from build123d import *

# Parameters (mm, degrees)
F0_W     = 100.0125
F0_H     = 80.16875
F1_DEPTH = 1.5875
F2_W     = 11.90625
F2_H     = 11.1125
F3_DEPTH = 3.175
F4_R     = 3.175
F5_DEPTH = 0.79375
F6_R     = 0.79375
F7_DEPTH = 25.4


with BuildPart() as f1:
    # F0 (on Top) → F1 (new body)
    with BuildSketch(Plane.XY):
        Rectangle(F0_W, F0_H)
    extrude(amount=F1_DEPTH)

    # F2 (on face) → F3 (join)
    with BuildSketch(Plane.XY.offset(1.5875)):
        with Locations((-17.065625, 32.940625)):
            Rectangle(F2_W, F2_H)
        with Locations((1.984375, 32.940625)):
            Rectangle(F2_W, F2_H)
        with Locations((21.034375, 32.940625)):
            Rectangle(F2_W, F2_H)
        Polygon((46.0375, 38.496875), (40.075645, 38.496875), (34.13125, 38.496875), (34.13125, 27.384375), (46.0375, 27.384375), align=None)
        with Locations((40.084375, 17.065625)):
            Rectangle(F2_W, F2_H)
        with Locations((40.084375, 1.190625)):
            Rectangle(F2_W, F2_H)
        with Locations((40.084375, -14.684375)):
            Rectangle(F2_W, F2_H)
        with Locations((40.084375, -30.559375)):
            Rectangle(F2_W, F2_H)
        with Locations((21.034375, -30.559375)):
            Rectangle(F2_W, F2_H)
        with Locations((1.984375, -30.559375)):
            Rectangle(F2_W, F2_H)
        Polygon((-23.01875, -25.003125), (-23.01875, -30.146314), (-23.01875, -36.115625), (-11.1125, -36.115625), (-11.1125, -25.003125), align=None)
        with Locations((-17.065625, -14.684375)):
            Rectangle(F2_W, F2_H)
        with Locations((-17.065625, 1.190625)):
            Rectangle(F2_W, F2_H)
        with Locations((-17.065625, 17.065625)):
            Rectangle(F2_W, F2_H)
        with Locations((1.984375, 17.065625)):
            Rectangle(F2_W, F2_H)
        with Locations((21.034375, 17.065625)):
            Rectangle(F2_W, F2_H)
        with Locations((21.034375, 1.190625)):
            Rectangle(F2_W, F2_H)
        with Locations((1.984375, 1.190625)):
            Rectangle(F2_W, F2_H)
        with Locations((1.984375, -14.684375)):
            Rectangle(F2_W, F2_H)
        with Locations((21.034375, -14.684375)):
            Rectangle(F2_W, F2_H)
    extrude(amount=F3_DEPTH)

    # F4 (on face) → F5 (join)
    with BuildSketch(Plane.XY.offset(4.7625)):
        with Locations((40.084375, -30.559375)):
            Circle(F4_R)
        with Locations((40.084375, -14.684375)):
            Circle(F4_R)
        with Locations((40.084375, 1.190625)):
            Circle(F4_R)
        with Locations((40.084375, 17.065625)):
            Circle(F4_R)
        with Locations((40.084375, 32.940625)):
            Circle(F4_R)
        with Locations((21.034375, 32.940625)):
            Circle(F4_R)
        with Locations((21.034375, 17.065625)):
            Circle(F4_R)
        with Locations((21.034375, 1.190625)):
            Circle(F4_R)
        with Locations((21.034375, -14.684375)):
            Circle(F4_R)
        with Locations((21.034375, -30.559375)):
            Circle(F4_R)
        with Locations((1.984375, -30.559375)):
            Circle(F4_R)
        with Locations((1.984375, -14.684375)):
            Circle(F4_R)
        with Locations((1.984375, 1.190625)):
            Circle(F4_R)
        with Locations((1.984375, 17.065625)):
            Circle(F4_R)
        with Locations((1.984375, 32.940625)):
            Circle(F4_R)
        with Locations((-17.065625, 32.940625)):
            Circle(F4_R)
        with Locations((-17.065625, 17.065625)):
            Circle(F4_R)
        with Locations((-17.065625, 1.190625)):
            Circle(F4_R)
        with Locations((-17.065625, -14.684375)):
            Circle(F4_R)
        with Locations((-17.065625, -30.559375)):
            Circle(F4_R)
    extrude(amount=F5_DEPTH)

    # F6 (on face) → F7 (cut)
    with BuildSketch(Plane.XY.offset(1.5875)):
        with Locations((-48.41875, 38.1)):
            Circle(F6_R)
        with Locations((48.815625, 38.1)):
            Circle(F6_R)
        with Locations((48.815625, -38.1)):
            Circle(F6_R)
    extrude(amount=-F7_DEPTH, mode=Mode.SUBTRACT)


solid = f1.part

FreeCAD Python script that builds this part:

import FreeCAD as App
import Part
import Sketcher
from FreeCAD import Vector
Q = App.Units.Quantity


def add_polygon(sketch, points):
    """Adds a closed chain of lines whose ends are joined by coincident constraints."""
    first, n = sketch.GeometryCount, len(points)
    for a, b in zip(points, points[1:] + points[:1]):
        sketch.addGeometry(Part.LineSegment(App.Vector(*a, 0), App.Vector(*b, 0)), False)
    for i in range(n):
        sketch.addConstraint(Sketcher.Constraint("Coincident", first + i, 2, first + (i + 1) % n, 1))

doc = App.newDocument("Part")
params = doc.addObject("Spreadsheet::Sheet", "Params")
for row, (alias, value) in enumerate([
    ("sketch1_width", "3.9375 in"),
    ("sketch1_height", "3.15625 in"),
    ("pad1_length", "0.0625 in"),
    ("sketch2_width", "0.46875 in"),
    ("sketch2_height", "0.4375 in"),
    ("pad2_length", "0.125 in"),
    ("sketch3_diameter", "0.25 in"),
    ("pad3_length", "0.03125 in"),
    ("sketch4_diameter", "0.0625 in"),
    ("pocket1_length", "1 in"),
], start=1):
    params.set(f"A{row}", alias)
    params.set(f"B{row}", "=" + value)
    params.setAlias(f"B{row}", alias)

body = doc.addObject("PartDesign::Body", "Body")

# Sketch on XY plane
sketch1 = body.newObject("Sketcher::SketchObject", "Sketch")
sketch1.AttachmentSupport = (doc.getObject("XY_Plane"), [""])
sketch1.MapMode = "FlatFace"
add_polygon(sketch1, [(-50.00625, 40.084375), (-50.00625, -40.084375), (50.00625, -40.084375), (50.00625, 40.084375)])  # lines 0-3
sketch1.addConstraint([
    Sketcher.Constraint("Vertical", 0),
    Sketcher.Constraint("Horizontal", 1),
    Sketcher.Constraint("Vertical", 2),
    Sketcher.Constraint("Horizontal", 3),
    Sketcher.Constraint("Symmetric", 0, 2, 2, 2, -1, 1),
    Sketcher.Constraint("DistanceX", 1, 1, 1, 2, Q("3.9375 in")),
    Sketcher.Constraint("DistanceY", 0, 2, 0, 1, Q("3.15625 in")),
])
sketch1.setExpression("Constraints[9]", "Params.sketch1_width")
sketch1.setExpression("Constraints[10]", "Params.sketch1_height")
pad1 = body.newObject("PartDesign::Pad", "Pad")
pad1.Profile = sketch1
pad1.setExpression("Length", "Params.pad1_length")

# Sketch on XY plane
sketch2 = body.newObject("Sketcher::SketchObject", "Sketch001")
sketch2.AttachmentSupport = (doc.getObject("XY_Plane"), [""])
sketch2.MapMode = "FlatFace"
sketch2.AttachmentOffset = App.Placement(Vector(0, 0, 0.0625 * 25.4), App.Rotation())
add_polygon(sketch2, [(-23.01875, 38.496875), (-23.01875, 27.384375), (-11.1125, 27.384375), (-11.1125, 38.496875)])  # lines 0-3
add_polygon(sketch2, [(-3.96875, 38.496875), (-3.96875, 27.384375), (7.9375, 27.384375), (7.9375, 38.496875)])  # lines 4-7
add_polygon(sketch2, [(15.08125, 38.496875), (15.08125, 27.384375), (26.9875, 27.384375), (26.9875, 38.496875)])  # lines 8-11
add_polygon(sketch2, [(46.0375, 38.496875), (34.13125, 38.496875), (34.13125, 27.384375), (46.0375, 27.384375)])  # lines 12-15
add_polygon(sketch2, [(34.13125, 22.621875), (34.13125, 11.509375), (46.0375, 11.509375), (46.0375, 22.621875)])  # lines 16-19
add_polygon(sketch2, [(34.13125, 6.746875), (34.13125, -4.365625), (46.0375, -4.365625), (46.0375, 6.746875)])  # lines 20-23
add_polygon(sketch2, [(34.13125, -9.128125), (34.13125, -20.240625), (46.0375, -20.240625), (46.0375, -9.128125)])  # lines 24-27
add_polygon(sketch2, [(34.13125, -25.003125), (34.13125, -36.115625), (46.0375, -36.115625), (46.0375, -25.003125)])  # lines 28-31
add_polygon(sketch2, [(15.08125, -25.003125), (15.08125, -36.115625), (26.9875, -36.115625), (26.9875, -25.003125)])  # lines 32-35
add_polygon(sketch2, [(-3.96875, -25.003125), (-3.96875, -36.115625), (7.9375, -36.115625), (7.9375, -25.003125)])  # lines 36-39
add_polygon(sketch2, [(-23.01875, -25.003125), (-23.01875, -36.115625), (-11.1125, -36.115625), (-11.1125, -25.003125)])  # lines 40-43
add_polygon(sketch2, [(-23.01875, -9.128125), (-23.01875, -20.240625), (-11.1125, -20.240625), (-11.1125, -9.128125)])  # lines 44-47
add_polygon(sketch2, [(-23.01875, 6.746875), (-23.01875, -4.365625), (-11.1125, -4.365625), (-11.1125, 6.746875)])  # lines 48-51
add_polygon(sketch2, [(-23.01875, 22.621875), (-23.01875, 11.509375), (-11.1125, 11.509375), (-11.1125, 22.621875)])  # lines 52-55
add_polygon(sketch2, [(-3.96875, 22.621875), (-3.96875, 11.509375), (7.9375, 11.509375), (7.9375, 22.621875)])  # lines 56-59
add_polygon(sketch2, [(15.08125, 22.621875), (15.08125, 11.509375), (26.9875, 11.509375), (26.9875, 22.621875)])  # lines 60-63
add_polygon(sketch2, [(15.08125, 6.746875), (15.08125, -4.365625), (26.9875, -4.365625), (26.9875, 6.746875)])  # lines 64-67
add_polygon(sketch2, [(-3.96875, 6.746875), (-3.96875, -4.365625), (7.9375, -4.365625), (7.9375, 6.746875)])  # lines 68-71
add_polygon(sketch2, [(-3.96875, -9.128125), (-3.96875, -20.240625), (7.9375, -20.240625), (7.9375, -9.128125)])  # lines 72-75
add_polygon(sketch2, [(15.08125, -9.128125), (15.08125, -20.240625), (26.9875, -20.240625), (26.9875, -9.128125)])  # lines 76-79
sketch2.addConstraint([
    Sketcher.Constraint("Vertical", 0),
    Sketcher.Constraint("Horizontal", 1),
    Sketcher.Constraint("Vertical", 2),
    Sketcher.Constraint("Horizontal", 3),
    Sketcher.Constraint("Vertical", 4),
    Sketcher.Constraint("Horizontal", 5),
    Sketcher.Constraint("Vertical", 6),
    Sketcher.Constraint("Horizontal", 7),
    Sketcher.Constraint("Vertical", 8),
    Sketcher.Constraint("Horizontal", 9),
    Sketcher.Constraint("Vertical", 10),
    Sketcher.Constraint("Horizontal", 11),
    Sketcher.Constraint("Horizontal", 12),
    Sketcher.Constraint("Vertical", 13),
    Sketcher.Constraint("Horizontal", 14),
    Sketcher.Constraint("Vertical", 15),
    Sketcher.Constraint("Vertical", 16),
    Sketcher.Constraint("Horizontal", 17),
    Sketcher.Constraint("Vertical", 18),
    Sketcher.Constraint("Horizontal", 19),
    Sketcher.Constraint("Vertical", 20),
    Sketcher.Constraint("Horizontal", 21),
    Sketcher.Constraint("Vertical", 22),
    Sketcher.Constraint("Horizontal", 23),
    Sketcher.Constraint("Vertical", 24),
    Sketcher.Constraint("Horizontal", 25),
    Sketcher.Constraint("Vertical", 26),
    Sketcher.Constraint("Horizontal", 27),
    Sketcher.Constraint("Vertical", 28),
    Sketcher.Constraint("Horizontal", 29),
    Sketcher.Constraint("Vertical", 30),
    Sketcher.Constraint("Horizontal", 31),
    Sketcher.Constraint("Vertical", 32),
    Sketcher.Constraint("Horizontal", 33),
    Sketcher.Constraint("Vertical", 34),
    Sketcher.Constraint("Horizontal", 35),
    Sketcher.Constraint("Vertical", 36),
    Sketcher.Constraint("Horizontal", 37),
    Sketcher.Constraint("Vertical", 38),
    Sketcher.Constraint("Horizontal", 39),
    Sketcher.Constraint("Vertical", 40),
    Sketcher.Constraint("Horizontal", 41),
    Sketcher.Constraint("Vertical", 42),
    Sketcher.Constraint("Horizontal", 43),
    Sketcher.Constraint("Vertical", 44),
    Sketcher.Constraint("Horizontal", 45),
    Sketcher.Constraint("Vertical", 46),
    Sketcher.Constraint("Horizontal", 47),
    Sketcher.Constraint("Vertical", 48),
    Sketcher.Constraint("Horizontal", 49),
    Sketcher.Constraint("Vertical", 50),
    Sketcher.Constraint("Horizontal", 51),
    Sketcher.Constraint("Vertical", 52),
    Sketcher.Constraint("Horizontal", 53),
    Sketcher.Constraint("Vertical", 54),
    Sketcher.Constraint("Horizontal", 55),
    Sketcher.Constraint("Vertical", 56),
    Sketcher.Constraint("Horizontal", 57),
    Sketcher.Constraint("Vertical", 58),
    Sketcher.Constraint("Horizontal", 59),
    Sketcher.Constraint("Vertical", 60),
    Sketcher.Constraint("Horizontal", 61),
    Sketcher.Constraint("Vertical", 62),
    Sketcher.Constraint("Horizontal", 63),
    Sketcher.Constraint("Vertical", 64),
    Sketcher.Constraint("Horizontal", 65),
    Sketcher.Constraint("Vertical", 66),
    Sketcher.Constraint("Horizontal", 67),
    Sketcher.Constraint("Vertical", 68),
    Sketcher.Constraint("Horizontal", 69),
    Sketcher.Constraint("Vertical", 70),
    Sketcher.Constraint("Horizontal", 71),
    Sketcher.Constraint("Vertical", 72),
    Sketcher.Constraint("Horizontal", 73),
    Sketcher.Constraint("Vertical", 74),
    Sketcher.Constraint("Horizontal", 75),
    Sketcher.Constraint("Vertical", 76),
    Sketcher.Constraint("Horizontal", 77),
    Sketcher.Constraint("Vertical", 78),
    Sketcher.Constraint("Horizontal", 79),
    Sketcher.Constraint("Horizontal", 1, 2, 4, 2),
    Sketcher.Constraint("Horizontal", 3, 2, 6, 2),
    Sketcher.Constraint("Horizontal", 5, 2, 8, 2),
    Sketcher.Constraint("Horizontal", 7, 2, 10, 2),
    Sketcher.Constraint("Horizontal", 11, 2, 12, 2),
    Sketcher.Constraint("Horizontal", 9, 2, 13, 2),
    Sketcher.Constraint("Horizontal", 29, 2, 32, 2),
    Sketcher.Constraint("Horizontal", 31, 2, 34, 2),
    Sketcher.Constraint("Horizontal", 33, 2, 36, 2),
    Sketcher.Constraint("Horizontal", 35, 2, 38, 2),
    Sketcher.Constraint("Horizontal", 37, 2, 40, 2),
    Sketcher.Constraint("Horizontal", 39, 2, 42, 2),
    Sketcher.Constraint("Horizontal", 25, 2, 44, 2),
    Sketcher.Constraint("Horizontal", 27, 2, 46, 2),
    Sketcher.Constraint("Horizontal", 21, 2, 48, 2),
    Sketcher.Constraint("Horizontal", 23, 2, 50, 2),
    Sketcher.Constraint("Horizontal", 17, 2, 52, 2),
    Sketcher.Constraint("Horizontal", 19, 2, 54, 2),
    Sketcher.Constraint("Horizontal", 53, 2, 56, 2),
    Sketcher.Constraint("Horizontal", 55, 2, 58, 2),
    Sketcher.Constraint("Horizontal", 57, 2, 60, 2),
    Sketcher.Constraint("Horizontal", 59, 2, 62, 2),
    Sketcher.Constraint("Horizontal", 49, 2, 64, 2),
    Sketcher.Constraint("Horizontal", 51, 2, 66, 2),
    Sketcher.Constraint("Horizontal", 65, 2, 68, 2),
    Sketcher.Constraint("Horizontal", 67, 2, 70, 2),
    Sketcher.Constraint("Horizontal", 45, 2, 72, 2),
    Sketcher.Constraint("Horizontal", 47, 2, 74, 2),
    Sketcher.Constraint("Horizontal", 73, 2, 76, 2),
    Sketcher.Constraint("Horizontal", 75, 2, 78, 2),
    Sketcher.Constraint("Vertical", 13, 2, 16, 2),
    Sketcher.Constraint("Vertical", 15, 2, 17, 2),
    Sketcher.Constraint("Vertical", 19, 2, 20, 2),
    Sketcher.Constraint("Vertical", 18, 2, 21, 2),
    Sketcher.Constraint("Vertical", 23, 2, 24, 2),
    Sketcher.Constraint("Vertical", 22, 2, 25, 2),
    Sketcher.Constraint("Vertical", 27, 2, 28, 2),
    Sketcher.Constraint("Vertical", 26, 2, 29, 2),
    Sketcher.Constraint("Vertical", 11, 2, 32, 2),
    Sketcher.Constraint("Vertical", 10, 2, 33, 2),
    Sketcher.Constraint("Vertical", 7, 2, 36, 2),
    Sketcher.Constraint("Vertical", 6, 2, 37, 2),
    Sketcher.Constraint("Vertical", 3, 2, 40, 2),
    Sketcher.Constraint("Vertical", 2, 2, 41, 2),
    Sketcher.Constraint("Vertical", 43, 2, 44, 2),
    Sketcher.Constraint("Vertical", 42, 2, 45, 2),
    Sketcher.Constraint("Vertical", 47, 2, 48, 2),
    Sketcher.Constraint("Vertical", 46, 2, 49, 2),
    Sketcher.Constraint("Vertical", 51, 2, 52, 2),
    Sketcher.Constraint("Vertical", 50, 2, 53, 2),
    Sketcher.Constraint("Vertical", 39, 2, 56, 2),
    Sketcher.Constraint("Vertical", 38, 2, 57, 2),
    Sketcher.Constraint("Vertical", 35, 2, 60, 2),
    Sketcher.Constraint("Vertical", 34, 2, 61, 2),
    Sketcher.Constraint("Vertical", 63, 2, 64, 2),
    Sketcher.Constraint("Vertical", 62, 2, 65, 2),
    Sketcher.Constraint("Vertical", 59, 2, 68, 2),
    Sketcher.Constraint("Vertical", 58, 2, 69, 2),
    Sketcher.Constraint("Vertical", 71, 2, 72, 2),
    Sketcher.Constraint("Vertical", 70, 2, 73, 2),
    Sketcher.Constraint("Vertical", 67, 2, 76, 2),
    Sketcher.Constraint("Vertical", 66, 2, 77, 2),
    Sketcher.Constraint("Equal", 3, 5),
    Sketcher.Constraint("Equal", 7, 9),
    Sketcher.Constraint("Equal", 11, 12),
    Sketcher.Constraint("Equal", 15, 16),
    Sketcher.Constraint("Equal", 18, 20),
    Sketcher.Constraint("Equal", 22, 24),
    Sketcher.Constraint("Equal", 26, 28),
    Sketcher.Constraint("DistanceX", 1, 1, 1, 2, Q("0.46875 in")),
    Sketcher.Constraint("DistanceY", 0, 2, 0, 1, Q("0.4375 in")),
    Sketcher.Constraint("DistanceX", 0, 2, -1, 1, Q("0.90625 in")),
    Sketcher.Constraint("DistanceY", -1, 1, 0, 2, Q("1.078125 in")),
    Sketcher.Constraint("DistanceX", 4, 2, -1, 1, Q("0.15625 in")),
    Sketcher.Constraint("DistanceX", -1, 1, 8, 2, Q("0.59375 in")),
    Sketcher.Constraint("DistanceX", -1, 1, 12, 2, Q("1.34375 in")),
    Sketcher.Constraint("DistanceY", -1, 1, 16, 2, Q("0.453125 in")),
    Sketcher.Constraint("DistanceY", 20, 2, -1, 1, Q("0.171875 in")),
    Sketcher.Constraint("DistanceY", 24, 2, -1, 1, Q("0.796875 in")),
    Sketcher.Constraint("DistanceY", 28, 2, -1, 1, Q("1.421875 in")),
])
sketch2.setExpression("Constraints[229]", "Params.sketch2_width")
sketch2.setExpression("Constraints[230]", "Params.sketch2_height")
pad2 = body.newObject("PartDesign::Pad", "Pad001")
pad2.Profile = sketch2
pad2.setExpression("Length", "Params.pad2_length")

# Sketch on XY plane
sketch3 = body.newObject("Sketcher::SketchObject", "Sketch002")
sketch3.AttachmentSupport = (doc.getObject("XY_Plane"), [""])
sketch3.MapMode = "FlatFace"
sketch3.AttachmentOffset = App.Placement(Vector(0, 0, 0.1875 * 25.4), App.Rotation())
sketch3.addGeometry([
    Part.Circle(Vector(40.084375, -30.559375, 0), Vector(0, 0, 1), 3.175),  # 0
    Part.Circle(Vector(40.084375, -14.684375, 0), Vector(0, 0, 1), 3.175),  # 1
    Part.Circle(Vector(40.084375, 1.190625, 0), Vector(0, 0, 1), 3.175),  # 2
    Part.Circle(Vector(40.084375, 17.065625, 0), Vector(0, 0, 1), 3.175),  # 3
    Part.Circle(Vector(40.084375, 32.940625, 0), Vector(0, 0, 1), 3.175),  # 4
    Part.Circle(Vector(21.034375, 32.940625, 0), Vector(0, 0, 1), 3.175),  # 5
    Part.Circle(Vector(21.034375, 17.065625, 0), Vector(0, 0, 1), 3.175),  # 6
    Part.Circle(Vector(21.034375, 1.190625, 0), Vector(0, 0, 1), 3.175),  # 7
    Part.Circle(Vector(21.034375, -14.684375, 0), Vector(0, 0, 1), 3.175),  # 8
    Part.Circle(Vector(21.034375, -30.559375, 0), Vector(0, 0, 1), 3.175),  # 9
    Part.Circle(Vector(1.984375, -30.559375, 0), Vector(0, 0, 1), 3.175),  # 10
    Part.Circle(Vector(1.984375, -14.684375, 0), Vector(0, 0, 1), 3.175),  # 11
    Part.Circle(Vector(1.984375, 1.190625, 0), Vector(0, 0, 1), 3.175),  # 12
    Part.Circle(Vector(1.984375, 17.065625, 0), Vector(0, 0, 1), 3.175),  # 13
    Part.Circle(Vector(1.984375, 32.940625, 0), Vector(0, 0, 1), 3.175),  # 14
    Part.Circle(Vector(-17.065625, 32.940625, 0), Vector(0, 0, 1), 3.175),  # 15
    Part.Circle(Vector(-17.065625, 17.065625, 0), Vector(0, 0, 1), 3.175),  # 16
    Part.Circle(Vector(-17.065625, 1.190625, 0), Vector(0, 0, 1), 3.175),  # 17
    Part.Circle(Vector(-17.065625, -14.684375, 0), Vector(0, 0, 1), 3.175),  # 18
    Part.Circle(Vector(-17.065625, -30.559375, 0), Vector(0, 0, 1), 3.175),  # 19
], False)
sketch3.addConstraint([
    Sketcher.Constraint("Equal", 0, 1),
    Sketcher.Constraint("Equal", 1, 2),
    Sketcher.Constraint("Equal", 2, 3),
    Sketcher.Constraint("Equal", 3, 4),
    Sketcher.Constraint("Equal", 4, 5),
    Sketcher.Constraint("Equal", 5, 6),
    Sketcher.Constraint("Equal", 6, 7),
    Sketcher.Constraint("Equal", 7, 8),
    Sketcher.Constraint("Equal", 8, 9),
    Sketcher.Constraint("Equal", 9, 10),
    Sketcher.Constraint("Equal", 10, 11),
    Sketcher.Constraint("Equal", 11, 12),
    Sketcher.Constraint("Equal", 12, 13),
    Sketcher.Constraint("Equal", 13, 14),
    Sketcher.Constraint("Equal", 14, 15),
    Sketcher.Constraint("Equal", 15, 16),
    Sketcher.Constraint("Equal", 16, 17),
    Sketcher.Constraint("Equal", 17, 18),
    Sketcher.Constraint("Equal", 18, 19),
    Sketcher.Constraint("Horizontal", 4, 3, 5, 3),
    Sketcher.Constraint("Horizontal", 3, 3, 6, 3),
    Sketcher.Constraint("Horizontal", 2, 3, 7, 3),
    Sketcher.Constraint("Horizontal", 1, 3, 8, 3),
    Sketcher.Constraint("Horizontal", 0, 3, 9, 3),
    Sketcher.Constraint("Horizontal", 9, 3, 10, 3),
    Sketcher.Constraint("Horizontal", 8, 3, 11, 3),
    Sketcher.Constraint("Horizontal", 7, 3, 12, 3),
    Sketcher.Constraint("Horizontal", 6, 3, 13, 3),
    Sketcher.Constraint("Horizontal", 5, 3, 14, 3),
    Sketcher.Constraint("Horizontal", 14, 3, 15, 3),
    Sketcher.Constraint("Horizontal", 13, 3, 16, 3),
    Sketcher.Constraint("Horizontal", 12, 3, 17, 3),
    Sketcher.Constraint("Horizontal", 11, 3, 18, 3),
    Sketcher.Constraint("Horizontal", 10, 3, 19, 3),
    Sketcher.Constraint("Vertical", 0, 3, 1, 3),
    Sketcher.Constraint("Vertical", 1, 3, 2, 3),
    Sketcher.Constraint("Vertical", 2, 3, 3, 3),
    Sketcher.Constraint("Vertical", 3, 3, 4, 3),
    Sketcher.Constraint("Vertical", 5, 3, 6, 3),
    Sketcher.Constraint("Vertical", 6, 3, 7, 3),
    Sketcher.Constraint("Vertical", 7, 3, 8, 3),
    Sketcher.Constraint("Vertical", 8, 3, 9, 3),
    Sketcher.Constraint("Vertical", 10, 3, 11, 3),
    Sketcher.Constraint("Vertical", 11, 3, 12, 3),
    Sketcher.Constraint("Vertical", 12, 3, 13, 3),
    Sketcher.Constraint("Vertical", 13, 3, 14, 3),
    Sketcher.Constraint("Vertical", 15, 3, 16, 3),
    Sketcher.Constraint("Vertical", 16, 3, 17, 3),
    Sketcher.Constraint("Vertical", 17, 3, 18, 3),
    Sketcher.Constraint("Vertical", 18, 3, 19, 3),
    Sketcher.Constraint("Diameter", 0, Q("0.25 in")),
    Sketcher.Constraint("DistanceY", 0, 3, 4, 3, Q("2.5 in")),
    Sketcher.Constraint("DistanceX", 10, 3, 0, 3, Q("1.5 in")),
    Sketcher.Constraint("DistanceX", 15, 3, 5, 3, Q("1.5 in")),
    Sketcher.Constraint("DistanceY", 0, 3, 2, 3, Q("1.25 in")),
    Sketcher.Constraint("DistanceY", 1, 3, 3, 3, Q("1.25 in")),
    Sketcher.Constraint("DistanceX", 5, 3, 4, 3, Q("0.75 in")),
    Sketcher.Constraint("DistanceX", -1, 1, 0, 3, Q("1.578125 in")),
    Sketcher.Constraint("DistanceY", 0, 3, -1, 1, Q("1.203125 in")),
    Sketcher.Constraint("DistanceY", 1, 3, -1, 1, Q("0.578125 in")),
])
sketch3.setExpression("Constraints[50]", "Params.sketch3_diameter")
pad3 = body.newObject("PartDesign::Pad", "Pad002")
pad3.Profile = sketch3
pad3.setExpression("Length", "Params.pad3_length")

# Sketch on XY plane
sketch4 = body.newObject("Sketcher::SketchObject", "Sketch003")
sketch4.AttachmentSupport = (doc.getObject("XY_Plane"), [""])
sketch4.MapMode = "FlatFace"
sketch4.AttachmentOffset = App.Placement(Vector(0, 0, 0.0625 * 25.4), App.Rotation())
sketch4.addGeometry([
    Part.Circle(Vector(-48.41875, 38.1, 0), Vector(0, 0, 1), 0.79375),
    Part.Circle(Vector(48.815625, 38.1, 0), Vector(0, 0, 1), 0.79375),
    Part.Circle(Vector(48.815625, -38.1, 0), Vector(0, 0, 1), 0.79375),
], False)
sketch4.addConstraint([
    Sketcher.Constraint("Equal", 0, 1),
    Sketcher.Constraint("Equal", 1, 2),
    Sketcher.Constraint("Symmetric", 1, 3, 2, 3, -1),
    Sketcher.Constraint("Horizontal", 0, 3, 1, 3),
    Sketcher.Constraint("Diameter", 0, Q("0.0625 in")),
    Sketcher.Constraint("DistanceY", 2, 3, 1, 3, Q("3 in")),
    Sketcher.Constraint("DistanceX", 0, 3, -1, 1, Q("1.90625 in")),
    Sketcher.Constraint("DistanceX", -1, 1, 1, 3, Q("1.921875 in")),
])
sketch4.setExpression("Constraints[4]", "Params.sketch4_diameter")
pocket1 = body.newObject("PartDesign::Pocket", "Pocket")
pocket1.Profile = sketch4
pocket1.setExpression("Length", "Params.pocket1_length")

doc.recompute()
